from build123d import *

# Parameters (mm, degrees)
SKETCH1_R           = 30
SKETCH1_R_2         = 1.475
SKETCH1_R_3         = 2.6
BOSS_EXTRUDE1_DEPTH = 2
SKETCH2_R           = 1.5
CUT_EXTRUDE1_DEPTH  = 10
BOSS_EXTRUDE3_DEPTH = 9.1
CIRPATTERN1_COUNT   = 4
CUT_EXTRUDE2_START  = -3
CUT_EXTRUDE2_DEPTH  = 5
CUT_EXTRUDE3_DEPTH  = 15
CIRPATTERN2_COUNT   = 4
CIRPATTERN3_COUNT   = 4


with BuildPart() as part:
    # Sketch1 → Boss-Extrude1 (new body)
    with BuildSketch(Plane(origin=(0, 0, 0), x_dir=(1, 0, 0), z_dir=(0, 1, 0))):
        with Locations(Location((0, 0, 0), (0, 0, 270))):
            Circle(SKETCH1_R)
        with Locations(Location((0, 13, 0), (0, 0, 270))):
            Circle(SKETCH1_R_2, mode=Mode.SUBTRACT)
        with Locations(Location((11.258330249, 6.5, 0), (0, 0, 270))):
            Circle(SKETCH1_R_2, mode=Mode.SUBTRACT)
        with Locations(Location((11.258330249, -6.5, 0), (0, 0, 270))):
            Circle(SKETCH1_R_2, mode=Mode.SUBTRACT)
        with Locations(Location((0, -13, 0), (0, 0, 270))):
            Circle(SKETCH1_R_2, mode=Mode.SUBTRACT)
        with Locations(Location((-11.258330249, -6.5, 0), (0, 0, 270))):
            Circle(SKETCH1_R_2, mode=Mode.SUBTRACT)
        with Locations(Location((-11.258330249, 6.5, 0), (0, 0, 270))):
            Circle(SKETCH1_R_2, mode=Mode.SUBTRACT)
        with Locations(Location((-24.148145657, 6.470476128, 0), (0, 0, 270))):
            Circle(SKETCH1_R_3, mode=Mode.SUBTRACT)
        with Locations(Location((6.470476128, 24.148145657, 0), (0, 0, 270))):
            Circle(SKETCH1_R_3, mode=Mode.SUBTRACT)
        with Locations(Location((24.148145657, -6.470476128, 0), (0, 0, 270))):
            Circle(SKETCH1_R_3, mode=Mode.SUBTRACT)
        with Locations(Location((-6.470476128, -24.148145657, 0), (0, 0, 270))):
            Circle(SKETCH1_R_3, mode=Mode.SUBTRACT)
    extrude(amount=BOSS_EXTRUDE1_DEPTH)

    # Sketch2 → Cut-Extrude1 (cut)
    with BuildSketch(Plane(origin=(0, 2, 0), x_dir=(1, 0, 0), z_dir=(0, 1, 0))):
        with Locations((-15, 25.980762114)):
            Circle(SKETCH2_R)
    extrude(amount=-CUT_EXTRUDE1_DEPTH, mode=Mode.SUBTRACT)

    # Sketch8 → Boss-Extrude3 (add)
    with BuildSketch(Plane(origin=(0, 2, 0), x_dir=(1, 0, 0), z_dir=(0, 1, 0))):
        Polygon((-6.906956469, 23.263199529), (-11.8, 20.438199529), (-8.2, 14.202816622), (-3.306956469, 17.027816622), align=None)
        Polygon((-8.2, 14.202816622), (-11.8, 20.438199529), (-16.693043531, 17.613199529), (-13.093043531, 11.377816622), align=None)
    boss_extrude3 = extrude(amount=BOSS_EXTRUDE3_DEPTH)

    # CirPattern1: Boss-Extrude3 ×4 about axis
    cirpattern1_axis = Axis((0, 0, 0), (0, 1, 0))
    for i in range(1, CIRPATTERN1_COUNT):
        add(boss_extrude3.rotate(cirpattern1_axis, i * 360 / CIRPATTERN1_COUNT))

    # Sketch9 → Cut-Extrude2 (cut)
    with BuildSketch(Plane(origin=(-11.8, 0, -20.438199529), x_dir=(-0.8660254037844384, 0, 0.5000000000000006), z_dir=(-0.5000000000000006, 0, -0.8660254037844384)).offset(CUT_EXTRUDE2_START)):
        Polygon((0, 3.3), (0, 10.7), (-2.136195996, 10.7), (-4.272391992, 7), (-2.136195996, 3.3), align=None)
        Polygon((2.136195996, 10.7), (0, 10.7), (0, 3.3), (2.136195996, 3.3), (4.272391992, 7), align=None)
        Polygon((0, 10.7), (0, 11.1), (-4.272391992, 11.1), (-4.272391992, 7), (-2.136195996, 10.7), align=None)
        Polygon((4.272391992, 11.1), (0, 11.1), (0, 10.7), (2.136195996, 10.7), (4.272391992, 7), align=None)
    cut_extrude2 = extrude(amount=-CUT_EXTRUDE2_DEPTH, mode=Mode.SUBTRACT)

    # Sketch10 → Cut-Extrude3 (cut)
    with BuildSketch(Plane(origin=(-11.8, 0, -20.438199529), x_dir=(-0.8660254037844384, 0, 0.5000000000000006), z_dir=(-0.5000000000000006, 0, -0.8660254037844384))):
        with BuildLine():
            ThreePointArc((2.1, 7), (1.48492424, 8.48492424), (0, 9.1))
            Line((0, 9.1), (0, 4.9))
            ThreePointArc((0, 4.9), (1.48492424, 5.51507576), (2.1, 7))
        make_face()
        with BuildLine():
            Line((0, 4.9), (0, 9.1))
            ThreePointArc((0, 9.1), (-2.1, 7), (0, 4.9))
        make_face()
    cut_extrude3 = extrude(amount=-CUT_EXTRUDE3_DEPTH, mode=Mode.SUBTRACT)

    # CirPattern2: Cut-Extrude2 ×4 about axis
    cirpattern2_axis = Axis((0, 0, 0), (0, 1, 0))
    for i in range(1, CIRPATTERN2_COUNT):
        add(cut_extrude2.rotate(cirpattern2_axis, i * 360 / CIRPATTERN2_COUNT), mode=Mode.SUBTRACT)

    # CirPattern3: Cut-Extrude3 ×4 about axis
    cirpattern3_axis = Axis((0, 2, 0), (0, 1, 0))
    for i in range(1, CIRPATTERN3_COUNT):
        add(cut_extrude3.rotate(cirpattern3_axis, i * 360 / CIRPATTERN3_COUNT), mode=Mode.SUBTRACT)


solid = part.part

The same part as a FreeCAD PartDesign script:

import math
import FreeCAD as App
import Part
import Sketcher
from FreeCAD import Vector
Q = App.Units.Quantity


def add_polygon(sketch, points):
    """Adds a closed chain of lines whose ends are joined by coincident constraints."""
    first, n = sketch.GeometryCount, len(points)
    for a, b in zip(points, points[1:] + points[:1]):
        sketch.addGeometry(Part.LineSegment(App.Vector(*a, 0), App.Vector(*b, 0)), False)
    for i in range(n):
        sketch.addConstraint(Sketcher.Constraint("Coincident", first + i, 2, first + (i + 1) % n, 1))

doc = App.newDocument("Part")
body = doc.addObject("PartDesign::Body", "Body")

sketch1 = body.newObject("Sketcher::SketchObject", "Sketch")
sketch1.AttachmentSupport = (doc.getObject("XZ_Plane"), [""])
sketch1.MapMode = "FlatFace"
sketch1.addGeometry(Part.Circle(Vector(0, 0, 0), Vector(0, 0, 1), 30), False)
sketch1.addGeometry(Part.Circle(Vector(-24.148146, -6.470476, 0), Vector(0, 0, 1), 2.6), False)
sketch1.addGeometry(Part.Circle(Vector(-11.25833, -6.5, 0), Vector(0, 0, 1), 1.475), False)
sketch1.addGeometry(Part.Circle(Vector(0, -13, 0), Vector(0, 0, 1), 1.475), False)
sketch1.addGeometry(Part.Circle(Vector(-11.25833, 6.5, 0), Vector(0, 0, 1), 1.475), False)
sketch1.addGeometry(Part.Circle(Vector(-6.470476, 24.148146, 0), Vector(0, 0, 1), 2.6), False)
sketch1.addGeometry(Part.Circle(Vector(6.470476, -24.148146, 0), Vector(0, 0, 1), 2.6), False)
sketch1.addGeometry(Part.Circle(Vector(11.25833, -6.5, 0), Vector(0, 0, 1), 1.475), False)
sketch1.addGeometry(Part.Circle(Vector(0, 13, 0), Vector(0, 0, 1), 1.475), False)
sketch1.addGeometry(Part.Circle(Vector(11.25833, 6.5, 0), Vector(0, 0, 1), 1.475), False)
sketch1.addGeometry(Part.Circle(Vector(24.148146, 6.470476, 0), Vector(0, 0, 1), 2.6), False)
sketch1.addConstraint(Sketcher.Constraint("Coincident", 0, 3, -1, 1))
sketch1.addConstraint(Sketcher.Constraint("Equal", 2, 3))
sketch1.addConstraint(Sketcher.Constraint("Equal", 3, 4))
sketch1.addConstraint(Sketcher.Constraint("Equal", 1, 5))
sketch1.addConstraint(Sketcher.Constraint("Equal", 5, 6))
sketch1.addConstraint(Sketcher.Constraint("Equal", 4, 7))
sketch1.addConstraint(Sketcher.Constraint("Equal", 7, 8))
sketch1.addConstraint(Sketcher.Constraint("Equal", 8, 9))
sketch1.addConstraint(Sketcher.Constraint("Equal", 6, 10))
sketch1.addConstraint(Sketcher.Constraint("Symmetric", 5, 3, 6, 3, -1, 1))
sketch1.addConstraint(Sketcher.Constraint("Symmetric", 4, 3, 7, 3, -1, 1))
sketch1.addConstraint(Sketcher.Constraint("Symmetric", 3, 3, 8, 3, -1, 1))
sketch1.addConstraint(Sketcher.Constraint("Symmetric", 2, 3, 9, 3, -1, 1))
sketch1.addConstraint(Sketcher.Constraint("Symmetric", 1, 3, 10, 3, -1, 1))
sketch1.addConstraint(Sketcher.Constraint("Symmetric", 2, 3, 7, 3, -2))
sketch1.addConstraint(Sketcher.Constraint("PointOnObject", 3, 3, -2))
sketch1.addConstraint(Sketcher.Constraint("Diameter", 0, 60.0))
sketch1.addConstraint(Sketcher.Constraint("Diameter", 1, 5.2))
sketch1.addConstraint(Sketcher.Constraint("Diameter", 2, 2.95))
sketch1.addConstraint(Sketcher.Constraint("DistanceY", 3, 3, -1, 1, 13.0))
sketch1.addConstraint(Sketcher.Constraint("DistanceY", 2, 3, 4, 3, 13.0))
sketch1.addConstraint(Sketcher.Constraint("DistanceX", 2, 3, -1, 1, 11.25833))
sketch1.addConstraint(Sketcher.Constraint("DistanceX", 1, 3, 5, 3, 17.67767))
sketch1.addConstraint(Sketcher.Constraint("DistanceY", 1, 3, 5, 3, 30.618622))
sketch1.addConstraint(Sketcher.Constraint("DistanceX", 1, 3, 6, 3, 30.618622))
sketch1.addConstraint(Sketcher.Constraint("DistanceY", 6, 3, 1, 3, 17.67767))
pad1 = body.newObject("PartDesign::Pad", "Pad")
pad1.Profile = sketch1
pad1.Length = 2
pad1.Reversed = True

sketch2 = body.newObject("Sketcher::SketchObject", "Sketch001")
sketch2.AttachmentSupport = (doc.getObject("XZ_Plane"), [""])
sketch2.MapMode = "FlatFace"
sketch2.AttachmentOffset = App.Placement(Vector(0, 0, -2), App.Rotation())
sketch2.addGeometry(Part.Circle(Vector(-15, -25.980762, 0), Vector(0, 0, 1), 1.5), False)
sketch2.addConstraint(Sketcher.Constraint("Diameter", 0, 3.0))
sketch2.addConstraint(Sketcher.Constraint("DistanceX", 0, 3, -1, 1, 15.0))
sketch2.addConstraint(Sketcher.Constraint("DistanceY", 0, 3, -1, 1, 25.980762))
pocket1 = body.newObject("PartDesign::Pocket", "Pocket")
pocket1.Profile = sketch2
pocket1.Length = 10
pocket1.Reversed = True

sketch3 = body.newObject("Sketcher::SketchObject", "Sketch002")
sketch3.AttachmentSupport = (doc.getObject("XZ_Plane"), [""])
sketch3.MapMode = "FlatFace"
sketch3.AttachmentOffset = App.Placement(Vector(0, 0, -2), App.Rotation())
add_polygon(sketch3, [(-6.906956, -23.2632), (-16.693044, -17.6132), (-13.093044, -11.377817), (-3.306956, -17.027817)])
sketch3.addConstraint(Sketcher.Constraint("Perpendicular", 0, 1))
sketch3.addConstraint(Sketcher.Constraint("Perpendicular", 1, 2))
sketch3.addConstraint(Sketcher.Constraint("Perpendicular", 2, 3))
sketch3.addConstraint(Sketcher.Constraint("Angle", 0, Q("150 deg")))
sketch3.addConstraint(Sketcher.Constraint("Distance", 0, 11.3))
sketch3.addConstraint(Sketcher.Constraint("Distance", 1, 7.2))
sketch3.addConstraint(Sketcher.Constraint("DistanceY", 0, 2, -1, 1, 17.6132))
sketch3.addConstraint(Sketcher.Constraint("DistanceX", 0, 2, -1, 1, 16.693044))
pad2 = body.newObject("PartDesign::Pad", "Pad001")
pad2.Profile = sketch3
pad2.Length = 9.1
pad2.Reversed = True
doc.recompute()

polarpattern = body.newObject("PartDesign::PolarPattern", "PolarPattern")
polarpattern.Originals = [pad2]
polarpattern.Axis = (doc.getObject("Y_Axis"), [""])
polarpattern.Angle = 360
polarpattern.Occurrences = 4
body.Tip = polarpattern

sketch4 = body.newObject("Sketcher::SketchObject", "Sketch003")
sketch4.Placement = App.Placement(Vector(-10.3, 0, -17.840123), App.Rotation(Vector(-0.866025404, 0, 0.5), Vector(0, 1, 0), Vector(-0.5, 0, -0.866025404), "ZXY"))
add_polygon(sketch4, [(-4.272392, 7), (-2.136196, 3.3), (2.136196, 3.3), (4.272392, 7), (4.272392, 11.1), (-4.272392, 11.1)])
sketch4.addConstraint(Sketcher.Constraint("Horizontal", 1))
sketch4.addConstraint(Sketcher.Constraint("Vertical", 3))
sketch4.addConstraint(Sketcher.Constraint("Horizontal", 4))
sketch4.addConstraint(Sketcher.Constraint("Vertical", 5))
sketch4.addConstraint(Sketcher.Constraint("Symmetric", 2, 2, 5, 2, -2))
sketch4.addConstraint(Sketcher.Constraint("Equal", 0, 2))
sketch4.addConstraint(Sketcher.Constraint("Angle", 0, Q("-60 deg")))
sketch4.addConstraint(Sketcher.Constraint("DistanceY", 3, 1, 3, 2, 4.1))
sketch4.addConstraint(Sketcher.Constraint("DistanceY", -1, 1, 2, 2, 7.0))
sketch4.addConstraint(Sketcher.Constraint("DistanceY", -1, 1, 0, 2, 3.3))
sketch4.addConstraint(Sketcher.Constraint("DistanceX", 1, 1, 1, 2, 4.272392))
pocket2 = body.newObject("PartDesign::Pocket", "Pocket001")
pocket2.Profile = sketch4
pocket2.Length = 5

sketch5 = body.newObject("Sketcher::SketchObject", "Sketch004")
sketch5.Placement = App.Placement(Vector(-11.8, 0, -20.4382), App.Rotation(Vector(-0.866025404, 0, 0.5), Vector(0, 1, 0), Vector(-0.5, 0, -0.866025404), "ZXY"))
sketch5.addGeometry(Part.ArcOfCircle(Part.Circle(Vector(0, 7, 0), Vector(0, 0, 1), 2.1), math.radians(0), math.radians(90)), False)
sketch5.addGeometry(Part.ArcOfCircle(Part.Circle(Vector(0, 7, 0), Vector(0, 0, 1), 2.1), math.radians(90), math.radians(270)), False)
sketch5.addGeometry(Part.ArcOfCircle(Part.Circle(Vector(0, 7, 0), Vector(0, 0, 1), 2.1), math.radians(-90), math.radians(0)), False)
sketch5.addConstraint(Sketcher.Constraint("Tangent", 0, 2, 1, 1))
sketch5.addConstraint(Sketcher.Constraint("Tangent", 1, 2, 2, 1))
sketch5.addConstraint(Sketcher.Constraint("Tangent", 2, 2, 0, 1))
sketch5.addConstraint(Sketcher.Constraint("PointOnObject", 0, 3, -2))
sketch5.addConstraint(Sketcher.Constraint("PointOnObject", 0, 2, -2))
sketch5.addConstraint(Sketcher.Constraint("PointOnObject", 1, 2, -2))
sketch5.addConstraint(Sketcher.Constraint("Horizontal", 1, 3, 2, 2))
sketch5.addConstraint(Sketcher.Constraint("Radius", 0, 2.1))
sketch5.addConstraint(Sketcher.Constraint("DistanceY", -1, 1, 0, 3, 7.0))
pocket3 = body.newObject("PartDesign::Pocket", "Pocket002")
pocket3.Profile = sketch5
pocket3.Length = 15
doc.recompute()

polarpattern2 = body.newObject("PartDesign::PolarPattern", "PolarPattern001")
polarpattern2.Originals = [pocket2]
polarpattern2.Axis = (doc.getObject("Y_Axis"), [""])
polarpattern2.Angle = 360
polarpattern2.Occurrences = 4
body.Tip = polarpattern2
doc.recompute()

polarpattern3 = body.newObject("PartDesign::PolarPattern", "PolarPattern002")
polarpattern3.Originals = [pocket3]
polarpattern3.Axis = (doc.getObject("Y_Axis"), [""])
polarpattern3.Angle = 360
polarpattern3.Occurrences = 4
body.Tip = polarpattern3

doc.recompute()
